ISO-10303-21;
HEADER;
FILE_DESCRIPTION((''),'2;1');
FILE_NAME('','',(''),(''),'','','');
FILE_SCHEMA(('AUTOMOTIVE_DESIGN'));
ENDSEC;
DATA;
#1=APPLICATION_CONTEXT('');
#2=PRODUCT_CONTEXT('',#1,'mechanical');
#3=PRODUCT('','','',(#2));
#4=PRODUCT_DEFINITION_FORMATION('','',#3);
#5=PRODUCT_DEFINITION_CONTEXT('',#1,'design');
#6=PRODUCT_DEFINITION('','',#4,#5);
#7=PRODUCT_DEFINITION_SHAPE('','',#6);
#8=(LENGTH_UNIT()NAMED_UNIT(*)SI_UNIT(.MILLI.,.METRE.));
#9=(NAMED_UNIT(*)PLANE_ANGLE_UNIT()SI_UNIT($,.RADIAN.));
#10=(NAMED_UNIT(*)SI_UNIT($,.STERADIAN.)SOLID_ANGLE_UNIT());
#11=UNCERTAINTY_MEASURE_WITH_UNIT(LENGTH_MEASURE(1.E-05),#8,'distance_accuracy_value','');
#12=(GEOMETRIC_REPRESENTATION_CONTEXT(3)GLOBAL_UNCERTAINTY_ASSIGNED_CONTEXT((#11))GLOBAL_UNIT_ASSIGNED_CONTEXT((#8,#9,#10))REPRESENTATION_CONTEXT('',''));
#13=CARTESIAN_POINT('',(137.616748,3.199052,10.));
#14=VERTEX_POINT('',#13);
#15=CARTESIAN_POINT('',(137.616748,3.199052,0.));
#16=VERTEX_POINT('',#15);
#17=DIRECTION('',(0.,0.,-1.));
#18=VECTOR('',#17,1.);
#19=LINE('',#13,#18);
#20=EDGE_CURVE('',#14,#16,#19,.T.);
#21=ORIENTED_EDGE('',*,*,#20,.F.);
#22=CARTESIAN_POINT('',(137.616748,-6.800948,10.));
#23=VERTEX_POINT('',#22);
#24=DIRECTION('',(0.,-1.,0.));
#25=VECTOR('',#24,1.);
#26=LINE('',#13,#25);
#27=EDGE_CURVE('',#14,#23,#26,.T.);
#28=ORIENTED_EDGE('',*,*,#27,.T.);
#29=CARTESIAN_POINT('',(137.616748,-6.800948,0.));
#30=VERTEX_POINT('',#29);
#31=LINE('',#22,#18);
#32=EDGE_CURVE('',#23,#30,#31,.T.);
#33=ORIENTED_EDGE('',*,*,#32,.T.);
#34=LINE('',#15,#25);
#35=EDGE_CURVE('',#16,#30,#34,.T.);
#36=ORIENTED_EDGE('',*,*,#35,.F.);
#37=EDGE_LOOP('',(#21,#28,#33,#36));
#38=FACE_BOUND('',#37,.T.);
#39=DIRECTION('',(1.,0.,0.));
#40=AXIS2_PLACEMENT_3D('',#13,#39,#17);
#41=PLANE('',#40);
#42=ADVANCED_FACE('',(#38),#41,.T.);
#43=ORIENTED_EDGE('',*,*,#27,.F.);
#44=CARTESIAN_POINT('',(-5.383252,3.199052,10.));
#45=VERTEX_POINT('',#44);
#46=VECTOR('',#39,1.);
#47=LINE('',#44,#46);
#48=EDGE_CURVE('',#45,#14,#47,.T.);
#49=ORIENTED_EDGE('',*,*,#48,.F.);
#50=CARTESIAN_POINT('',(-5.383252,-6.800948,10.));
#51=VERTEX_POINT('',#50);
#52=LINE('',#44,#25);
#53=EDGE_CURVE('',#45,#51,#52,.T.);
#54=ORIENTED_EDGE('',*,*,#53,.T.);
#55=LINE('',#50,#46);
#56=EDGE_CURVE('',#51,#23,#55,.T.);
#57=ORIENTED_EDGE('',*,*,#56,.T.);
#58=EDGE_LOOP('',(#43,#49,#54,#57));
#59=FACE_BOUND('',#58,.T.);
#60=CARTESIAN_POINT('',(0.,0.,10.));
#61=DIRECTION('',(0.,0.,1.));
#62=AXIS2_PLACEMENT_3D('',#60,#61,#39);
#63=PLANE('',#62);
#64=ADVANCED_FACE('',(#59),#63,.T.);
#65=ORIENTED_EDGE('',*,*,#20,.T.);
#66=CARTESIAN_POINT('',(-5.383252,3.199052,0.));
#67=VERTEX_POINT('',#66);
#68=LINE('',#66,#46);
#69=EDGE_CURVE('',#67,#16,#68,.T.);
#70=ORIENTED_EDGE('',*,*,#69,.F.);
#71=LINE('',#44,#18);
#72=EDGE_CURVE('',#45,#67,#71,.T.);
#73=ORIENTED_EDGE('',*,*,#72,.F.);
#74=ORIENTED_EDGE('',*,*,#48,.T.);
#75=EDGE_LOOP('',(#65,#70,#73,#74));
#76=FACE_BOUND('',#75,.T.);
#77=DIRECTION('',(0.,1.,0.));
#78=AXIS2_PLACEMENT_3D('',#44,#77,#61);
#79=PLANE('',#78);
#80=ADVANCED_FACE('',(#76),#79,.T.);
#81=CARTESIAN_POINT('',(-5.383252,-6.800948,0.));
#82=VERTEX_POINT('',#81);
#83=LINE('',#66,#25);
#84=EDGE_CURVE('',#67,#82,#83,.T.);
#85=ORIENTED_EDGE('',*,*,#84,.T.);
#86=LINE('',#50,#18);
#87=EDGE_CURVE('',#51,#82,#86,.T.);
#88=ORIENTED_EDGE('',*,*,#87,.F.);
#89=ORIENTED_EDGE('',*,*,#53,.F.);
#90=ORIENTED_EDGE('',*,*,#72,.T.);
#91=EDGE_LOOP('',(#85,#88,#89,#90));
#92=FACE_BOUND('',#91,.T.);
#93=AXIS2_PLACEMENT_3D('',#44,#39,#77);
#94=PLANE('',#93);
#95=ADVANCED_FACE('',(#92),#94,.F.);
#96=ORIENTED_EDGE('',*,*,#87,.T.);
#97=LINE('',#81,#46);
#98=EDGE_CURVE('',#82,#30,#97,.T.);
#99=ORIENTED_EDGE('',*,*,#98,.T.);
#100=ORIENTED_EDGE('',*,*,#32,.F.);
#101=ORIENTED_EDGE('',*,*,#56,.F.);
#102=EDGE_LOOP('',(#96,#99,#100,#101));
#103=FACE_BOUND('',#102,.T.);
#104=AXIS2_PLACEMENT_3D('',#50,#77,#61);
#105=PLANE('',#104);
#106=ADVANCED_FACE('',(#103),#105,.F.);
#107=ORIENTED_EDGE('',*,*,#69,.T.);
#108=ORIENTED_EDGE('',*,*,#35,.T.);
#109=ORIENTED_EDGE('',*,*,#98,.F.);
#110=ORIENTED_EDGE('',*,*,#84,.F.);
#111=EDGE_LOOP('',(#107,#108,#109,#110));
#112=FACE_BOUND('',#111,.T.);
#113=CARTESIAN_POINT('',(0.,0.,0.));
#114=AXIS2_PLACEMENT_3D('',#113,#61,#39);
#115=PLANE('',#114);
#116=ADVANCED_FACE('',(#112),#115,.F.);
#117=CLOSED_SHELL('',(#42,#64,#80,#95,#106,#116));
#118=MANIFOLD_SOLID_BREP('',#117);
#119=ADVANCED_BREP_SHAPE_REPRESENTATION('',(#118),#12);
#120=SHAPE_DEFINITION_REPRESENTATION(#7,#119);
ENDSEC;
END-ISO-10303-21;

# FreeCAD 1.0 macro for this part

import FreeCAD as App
import Part
import Sketcher

V = App.Vector


def add_polygon(sketch, points):
    """Adds a closed chain of lines whose ends are joined by coincident constraints."""
    first, n = sketch.GeometryCount, len(points)
    for a, b in zip(points, points[1:] + points[:1]):
        sketch.addGeometry(Part.LineSegment(App.Vector(*a, 0), App.Vector(*b, 0)), False)
    for i in range(n):
        sketch.addConstraint(Sketcher.Constraint("Coincident", first + i, 2, first + (i + 1) % n, 1))

doc = App.newDocument("Part")
params = doc.addObject("Spreadsheet::Sheet", "Params")
for row, (alias, value) in enumerate([
    ("sketch1_width", "143 mm"),
    ("sketch1_height", "10 mm"),
    ("pad1_length", "10 mm"),
], start=1):
    params.set(f"A{row}", alias)
    params.set(f"B{row}", "=" + value)
    params.setAlias(f"B{row}", alias)

body = doc.addObject("PartDesign::Body", "Body")

# Sketch on XY plane
sketch1 = doc.addObject("Sketcher::SketchObject", "Sketch")
body.addObject(sketch1)
sketch1.AttachmentSupport = (doc.XY_Plane, [""])
sketch1.MapMode = "FlatFace"
add_polygon(sketch1, [(-5, 3), (-5, -7), (138, -7), (138, 3)])  # lines 0-3
sketch1.addConstraint([
    Sketcher.Constraint("Vertical", 0),
    Sketcher.Constraint("Horizontal", 1),
    Sketcher.Constraint("Vertical", 2),
    Sketcher.Constraint("Horizontal", 3),
    Sketcher.Constraint("DistanceX", 1, 1, 1, 2, 143.0),
    Sketcher.Constraint("DistanceY", 0, 2, 0, 1, 10.0),
    Sketcher.Constraint("DistanceX", 0, 2, -1, 1, 5.383252),
    Sketcher.Constraint("DistanceY", 0, 2, -1, 1, 6.800948),
])
sketch1.setExpression("Constraints[8]", "Params.sketch1_width")
sketch1.setExpression("Constraints[9]", "Params.sketch1_height")
pad1 = doc.addObject("PartDesign::Pad", "Pad")
body.addObject(pad1)
pad1.Profile = sketch1
pad1.setExpression("Length", "Params.pad1_length")

doc.recompute()
